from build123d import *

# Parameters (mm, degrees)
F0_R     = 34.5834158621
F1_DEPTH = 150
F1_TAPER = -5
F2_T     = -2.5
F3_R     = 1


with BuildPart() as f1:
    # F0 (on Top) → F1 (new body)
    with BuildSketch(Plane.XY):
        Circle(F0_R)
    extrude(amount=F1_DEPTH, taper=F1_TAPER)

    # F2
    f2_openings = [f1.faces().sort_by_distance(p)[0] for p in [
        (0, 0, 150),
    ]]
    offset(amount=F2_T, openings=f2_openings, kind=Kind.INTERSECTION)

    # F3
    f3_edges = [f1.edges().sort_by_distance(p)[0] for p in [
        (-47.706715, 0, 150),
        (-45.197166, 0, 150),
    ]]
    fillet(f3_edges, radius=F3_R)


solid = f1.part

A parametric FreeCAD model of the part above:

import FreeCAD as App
import Part
import Sketcher
Q = App.Units.Quantity


def edges_at(feature, points):
    """Names of the edges that pass closest to the given points."""
    edges = feature.Shape.Edges
    near = lambda p: min(range(len(edges)), key=lambda i: edges[i].distToShape(Part.Vertex(*p))[0])
    return sorted({f"Edge{near(p) + 1}" for p in points})


def faces_at(feature, points):
    """Names of the faces that lie closest to the given points."""
    faces = feature.Shape.Faces
    near = lambda p: min(range(len(faces)), key=lambda i: faces[i].distToShape(Part.Vertex(*p))[0])
    return sorted({f"Face{near(p) + 1}" for p in points})

doc = App.newDocument("Part")
body = doc.addObject("PartDesign::Body", "Body")

# Sketch on XY plane
sketch1 = body.newObject("Sketcher::SketchObject", "Sketch")
sketch1.AttachmentSupport = (doc.getObject("XY_Plane"), [""])
sketch1.MapMode = "FlatFace"
sketch1.addGeometry(Part.Circle(App.Vector(0, 0, 0), App.Vector(0, 0, 1), 35), False)
sketch1.addConstraint(Sketcher.Constraint("Coincident", 0, 3, -1, 1))
sketch1.addConstraint(Sketcher.Constraint("Diameter", 0, Q("69.166832 mm")))
pad1 = body.newObject("PartDesign::Pad", "Pad")
pad1.Profile = sketch1
pad1.Length = 150
pad1.TaperAngle = 5
doc.recompute()

thickness = body.newObject("PartDesign::Thickness", "Thickness")
thickness.Base = (pad1, faces_at(pad1, [(0, 0, 150)]))
thickness.Value = 2.5
thickness.Reversed = True
thickness.Join = "Intersection"
doc.recompute()

fillet = body.newObject("PartDesign::Fillet", "Fillet")
fillet.Base = (thickness, edges_at(thickness, [(-47.707, 0, 150), (-45.197, 0, 150)]))
fillet.Radius = 1

doc.recompute()
